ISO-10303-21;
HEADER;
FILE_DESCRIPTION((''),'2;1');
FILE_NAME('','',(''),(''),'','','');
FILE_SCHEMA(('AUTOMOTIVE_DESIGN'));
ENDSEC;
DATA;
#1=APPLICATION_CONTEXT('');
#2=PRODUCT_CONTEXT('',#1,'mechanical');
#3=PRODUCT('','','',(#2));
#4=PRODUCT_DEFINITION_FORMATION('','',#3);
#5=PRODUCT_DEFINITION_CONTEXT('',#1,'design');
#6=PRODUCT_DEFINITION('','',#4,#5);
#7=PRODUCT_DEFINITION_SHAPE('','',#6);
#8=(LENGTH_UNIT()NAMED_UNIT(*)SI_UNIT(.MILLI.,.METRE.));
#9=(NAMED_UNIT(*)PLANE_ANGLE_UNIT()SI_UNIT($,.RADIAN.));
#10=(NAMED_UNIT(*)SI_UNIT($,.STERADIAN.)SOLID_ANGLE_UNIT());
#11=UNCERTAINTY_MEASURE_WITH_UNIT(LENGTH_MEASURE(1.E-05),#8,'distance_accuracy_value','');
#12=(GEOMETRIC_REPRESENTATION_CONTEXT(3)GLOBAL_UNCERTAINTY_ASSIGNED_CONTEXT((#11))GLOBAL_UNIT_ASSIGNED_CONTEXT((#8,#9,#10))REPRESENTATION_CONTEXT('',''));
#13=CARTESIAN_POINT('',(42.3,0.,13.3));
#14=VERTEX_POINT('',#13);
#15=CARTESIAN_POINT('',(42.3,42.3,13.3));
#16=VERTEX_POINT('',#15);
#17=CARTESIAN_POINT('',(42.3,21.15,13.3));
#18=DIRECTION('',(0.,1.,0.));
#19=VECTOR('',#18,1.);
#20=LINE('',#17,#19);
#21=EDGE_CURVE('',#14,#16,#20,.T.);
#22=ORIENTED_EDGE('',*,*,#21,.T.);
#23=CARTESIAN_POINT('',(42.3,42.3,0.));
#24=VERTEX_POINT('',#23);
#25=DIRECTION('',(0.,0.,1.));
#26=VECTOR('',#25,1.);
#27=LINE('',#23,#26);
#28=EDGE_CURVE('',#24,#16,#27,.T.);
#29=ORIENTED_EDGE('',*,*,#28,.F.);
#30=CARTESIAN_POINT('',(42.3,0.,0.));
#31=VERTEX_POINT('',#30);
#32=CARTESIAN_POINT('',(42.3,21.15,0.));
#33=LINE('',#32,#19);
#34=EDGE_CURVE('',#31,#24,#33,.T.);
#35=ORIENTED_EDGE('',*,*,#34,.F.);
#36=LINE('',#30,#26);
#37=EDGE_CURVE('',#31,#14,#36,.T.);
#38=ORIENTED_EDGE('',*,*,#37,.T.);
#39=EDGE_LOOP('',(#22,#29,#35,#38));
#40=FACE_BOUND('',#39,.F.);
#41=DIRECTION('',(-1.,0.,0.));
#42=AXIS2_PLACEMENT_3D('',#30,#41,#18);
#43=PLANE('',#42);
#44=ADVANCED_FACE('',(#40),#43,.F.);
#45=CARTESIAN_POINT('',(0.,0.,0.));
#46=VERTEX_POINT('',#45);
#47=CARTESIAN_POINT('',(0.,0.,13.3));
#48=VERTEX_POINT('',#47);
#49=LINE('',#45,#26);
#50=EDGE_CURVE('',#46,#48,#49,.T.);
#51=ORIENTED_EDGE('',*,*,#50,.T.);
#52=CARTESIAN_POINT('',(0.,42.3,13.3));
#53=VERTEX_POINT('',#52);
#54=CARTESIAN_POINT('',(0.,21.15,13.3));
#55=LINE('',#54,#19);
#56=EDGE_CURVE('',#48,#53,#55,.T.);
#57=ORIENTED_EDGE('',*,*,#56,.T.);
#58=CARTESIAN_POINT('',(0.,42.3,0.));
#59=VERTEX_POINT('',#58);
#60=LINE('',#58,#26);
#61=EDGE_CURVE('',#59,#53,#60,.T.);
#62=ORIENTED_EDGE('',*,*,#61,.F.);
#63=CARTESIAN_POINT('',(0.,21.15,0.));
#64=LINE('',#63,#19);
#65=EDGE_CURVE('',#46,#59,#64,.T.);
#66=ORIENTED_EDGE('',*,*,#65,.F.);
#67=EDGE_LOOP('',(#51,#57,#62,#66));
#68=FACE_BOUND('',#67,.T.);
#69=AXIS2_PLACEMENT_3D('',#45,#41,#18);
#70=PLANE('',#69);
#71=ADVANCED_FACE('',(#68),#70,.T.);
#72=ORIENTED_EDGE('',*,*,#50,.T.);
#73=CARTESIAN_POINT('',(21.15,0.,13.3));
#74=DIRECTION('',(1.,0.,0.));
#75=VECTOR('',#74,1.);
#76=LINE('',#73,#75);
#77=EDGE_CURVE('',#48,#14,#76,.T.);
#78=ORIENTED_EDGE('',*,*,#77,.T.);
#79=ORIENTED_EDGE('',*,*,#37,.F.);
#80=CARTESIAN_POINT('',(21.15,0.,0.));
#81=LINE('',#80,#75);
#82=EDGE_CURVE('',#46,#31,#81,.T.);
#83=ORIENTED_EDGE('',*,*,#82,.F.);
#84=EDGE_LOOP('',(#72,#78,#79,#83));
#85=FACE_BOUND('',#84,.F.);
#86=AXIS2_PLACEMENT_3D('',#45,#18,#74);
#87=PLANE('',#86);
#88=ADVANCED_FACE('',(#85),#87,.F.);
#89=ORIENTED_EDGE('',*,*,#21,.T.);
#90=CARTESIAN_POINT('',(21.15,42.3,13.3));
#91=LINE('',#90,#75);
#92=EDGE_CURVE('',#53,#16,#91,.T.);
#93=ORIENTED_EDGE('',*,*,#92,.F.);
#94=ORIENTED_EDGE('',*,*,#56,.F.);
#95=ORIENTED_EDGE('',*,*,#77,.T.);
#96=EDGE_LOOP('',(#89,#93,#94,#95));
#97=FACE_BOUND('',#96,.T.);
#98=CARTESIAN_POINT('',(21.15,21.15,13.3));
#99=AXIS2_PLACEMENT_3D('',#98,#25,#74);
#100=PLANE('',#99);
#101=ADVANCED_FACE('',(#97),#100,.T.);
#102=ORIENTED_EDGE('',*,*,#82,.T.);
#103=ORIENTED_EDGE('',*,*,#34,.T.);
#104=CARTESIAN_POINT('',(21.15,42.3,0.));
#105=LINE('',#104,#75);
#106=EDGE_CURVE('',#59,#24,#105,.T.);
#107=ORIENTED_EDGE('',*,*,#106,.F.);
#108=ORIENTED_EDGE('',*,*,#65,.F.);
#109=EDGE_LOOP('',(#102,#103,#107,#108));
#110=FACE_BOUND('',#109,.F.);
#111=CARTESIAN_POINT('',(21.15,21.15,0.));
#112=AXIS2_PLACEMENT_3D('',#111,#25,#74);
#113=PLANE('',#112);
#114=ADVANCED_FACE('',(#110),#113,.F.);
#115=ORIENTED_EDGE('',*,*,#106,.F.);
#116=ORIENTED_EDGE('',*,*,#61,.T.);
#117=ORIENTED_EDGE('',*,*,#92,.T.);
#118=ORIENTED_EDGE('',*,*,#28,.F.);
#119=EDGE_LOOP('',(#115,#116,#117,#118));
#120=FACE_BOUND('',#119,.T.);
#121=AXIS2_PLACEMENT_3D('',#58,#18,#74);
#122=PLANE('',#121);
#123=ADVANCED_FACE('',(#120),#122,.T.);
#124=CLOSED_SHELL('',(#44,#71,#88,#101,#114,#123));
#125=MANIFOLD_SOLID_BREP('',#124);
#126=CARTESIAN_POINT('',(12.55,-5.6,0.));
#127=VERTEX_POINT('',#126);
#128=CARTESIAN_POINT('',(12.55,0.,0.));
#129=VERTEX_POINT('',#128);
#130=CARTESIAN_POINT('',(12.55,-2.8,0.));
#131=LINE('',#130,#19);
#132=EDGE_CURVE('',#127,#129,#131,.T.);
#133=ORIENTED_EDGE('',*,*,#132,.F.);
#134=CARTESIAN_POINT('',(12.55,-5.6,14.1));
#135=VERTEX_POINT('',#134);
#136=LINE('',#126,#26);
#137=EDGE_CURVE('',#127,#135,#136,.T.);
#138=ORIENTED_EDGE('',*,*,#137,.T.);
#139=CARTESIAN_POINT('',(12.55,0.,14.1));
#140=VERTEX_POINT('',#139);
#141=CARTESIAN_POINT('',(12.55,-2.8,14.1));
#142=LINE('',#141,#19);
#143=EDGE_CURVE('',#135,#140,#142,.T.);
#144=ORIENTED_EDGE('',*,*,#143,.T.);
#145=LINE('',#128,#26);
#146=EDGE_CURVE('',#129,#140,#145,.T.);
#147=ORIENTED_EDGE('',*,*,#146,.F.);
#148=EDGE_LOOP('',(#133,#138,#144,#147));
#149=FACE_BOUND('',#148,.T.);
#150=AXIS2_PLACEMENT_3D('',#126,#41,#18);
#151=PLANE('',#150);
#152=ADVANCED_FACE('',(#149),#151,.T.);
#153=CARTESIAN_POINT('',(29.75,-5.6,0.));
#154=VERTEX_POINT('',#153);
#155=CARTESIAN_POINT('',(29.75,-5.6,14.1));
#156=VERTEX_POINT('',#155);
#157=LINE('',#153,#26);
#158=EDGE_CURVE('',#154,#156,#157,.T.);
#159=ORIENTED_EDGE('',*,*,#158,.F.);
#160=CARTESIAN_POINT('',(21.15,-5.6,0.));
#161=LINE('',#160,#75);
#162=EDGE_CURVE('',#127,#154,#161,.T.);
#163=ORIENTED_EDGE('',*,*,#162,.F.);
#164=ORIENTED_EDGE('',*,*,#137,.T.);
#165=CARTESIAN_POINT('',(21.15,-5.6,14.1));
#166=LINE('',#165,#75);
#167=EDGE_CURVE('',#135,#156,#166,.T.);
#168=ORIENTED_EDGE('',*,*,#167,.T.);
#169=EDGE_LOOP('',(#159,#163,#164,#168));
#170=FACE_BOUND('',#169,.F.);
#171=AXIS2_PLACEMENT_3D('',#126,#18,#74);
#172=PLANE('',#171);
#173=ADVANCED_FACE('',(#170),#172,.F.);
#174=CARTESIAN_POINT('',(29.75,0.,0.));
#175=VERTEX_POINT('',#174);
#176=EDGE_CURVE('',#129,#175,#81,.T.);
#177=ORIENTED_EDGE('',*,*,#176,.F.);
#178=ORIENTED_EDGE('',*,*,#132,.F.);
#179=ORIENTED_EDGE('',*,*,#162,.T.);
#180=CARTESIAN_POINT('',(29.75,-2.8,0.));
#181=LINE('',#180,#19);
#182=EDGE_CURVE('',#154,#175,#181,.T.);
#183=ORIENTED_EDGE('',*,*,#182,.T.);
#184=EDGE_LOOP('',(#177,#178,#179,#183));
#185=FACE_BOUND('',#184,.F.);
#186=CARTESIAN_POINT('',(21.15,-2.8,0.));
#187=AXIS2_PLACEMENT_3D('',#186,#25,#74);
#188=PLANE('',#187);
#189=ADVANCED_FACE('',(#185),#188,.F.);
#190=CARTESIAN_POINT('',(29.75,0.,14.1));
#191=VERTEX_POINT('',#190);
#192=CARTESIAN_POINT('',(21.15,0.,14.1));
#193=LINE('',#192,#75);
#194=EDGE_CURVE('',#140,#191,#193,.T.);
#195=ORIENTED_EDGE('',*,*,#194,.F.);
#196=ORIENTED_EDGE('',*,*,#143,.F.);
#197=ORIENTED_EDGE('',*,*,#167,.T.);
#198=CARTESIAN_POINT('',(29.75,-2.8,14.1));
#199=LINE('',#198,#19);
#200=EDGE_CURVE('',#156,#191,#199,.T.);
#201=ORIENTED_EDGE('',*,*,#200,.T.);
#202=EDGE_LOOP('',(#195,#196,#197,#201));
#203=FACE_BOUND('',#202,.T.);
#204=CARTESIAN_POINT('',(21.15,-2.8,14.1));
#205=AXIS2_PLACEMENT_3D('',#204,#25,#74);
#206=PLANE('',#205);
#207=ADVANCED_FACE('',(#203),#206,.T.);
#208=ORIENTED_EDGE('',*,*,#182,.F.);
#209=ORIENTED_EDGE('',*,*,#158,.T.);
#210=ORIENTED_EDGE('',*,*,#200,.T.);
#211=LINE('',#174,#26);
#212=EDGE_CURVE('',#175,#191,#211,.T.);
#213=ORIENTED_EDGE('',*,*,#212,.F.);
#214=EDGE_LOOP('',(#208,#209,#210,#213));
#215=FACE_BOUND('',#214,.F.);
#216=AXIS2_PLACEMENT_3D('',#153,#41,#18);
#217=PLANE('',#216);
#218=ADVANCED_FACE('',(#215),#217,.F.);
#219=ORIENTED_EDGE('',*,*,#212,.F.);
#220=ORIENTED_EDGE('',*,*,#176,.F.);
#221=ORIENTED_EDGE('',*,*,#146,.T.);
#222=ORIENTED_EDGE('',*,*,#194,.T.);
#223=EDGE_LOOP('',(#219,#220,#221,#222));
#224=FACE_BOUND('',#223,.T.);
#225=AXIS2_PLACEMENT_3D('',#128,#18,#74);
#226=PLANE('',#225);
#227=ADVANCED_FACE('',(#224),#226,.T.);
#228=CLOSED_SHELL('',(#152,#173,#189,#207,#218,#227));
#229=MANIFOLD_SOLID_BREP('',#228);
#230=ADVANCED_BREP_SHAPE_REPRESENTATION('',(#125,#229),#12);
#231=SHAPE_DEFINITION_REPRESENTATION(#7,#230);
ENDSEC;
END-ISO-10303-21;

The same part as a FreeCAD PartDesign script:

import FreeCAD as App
import Part
import Sketcher
from FreeCAD import Vector

doc = App.newDocument("Part")
body = doc.addObject("PartDesign::Body", "Body")

# Sketch on XY plane
sketch1 = body.newObject("Sketcher::SketchObject", "Sketch")
sketch1.AttachmentSupport = (doc.getObject("XY_Plane"), [""])
sketch1.MapMode = "FlatFace"
sketch1.addGeometry([
    Part.LineSegment(Vector(0, 42, 0), Vector(0, 0, 0)),
    Part.LineSegment(Vector(0, 0, 0), Vector(42, 0, 0)),
    Part.LineSegment(Vector(42, 0, 0), Vector(42, 42, 0)),
    Part.LineSegment(Vector(42, 42, 0), Vector(0, 42, 0)),
], False)
sketch1.addConstraint([
    Sketcher.Constraint("Coincident", 0, 2, 1, 1),
    Sketcher.Constraint("Coincident", 1, 2, 2, 1),
    Sketcher.Constraint("Coincident", 2, 2, 3, 1),
    Sketcher.Constraint("Coincident", 3, 2, 0, 1),
    Sketcher.Constraint("Vertical", 0),
    Sketcher.Constraint("Horizontal", 1),
    Sketcher.Constraint("Vertical", 2),
    Sketcher.Constraint("Horizontal", 3),
    Sketcher.Constraint("Coincident", 0, 2, -1, 1),
    Sketcher.Constraint("Equal", 3, 0),
    Sketcher.Constraint("DistanceX", 1, 1, 1, 2, 42.3),
])
pad1 = body.newObject("PartDesign::Pad", "Pad")
pad1.Profile = sketch1
pad1.Length = 13.3
body2 = doc.addObject("PartDesign::Body", "Body001")

# Sketch on XY plane
sketch2 = body2.newObject("Sketcher::SketchObject", "Sketch001")
sketch2.AttachmentSupport = (doc.getObject("XY_Plane001"), [""])
sketch2.MapMode = "FlatFace"
sketch2.addGeometry([
    Part.LineSegment(Vector(13, 0, 0), Vector(13, -6, 0)),
    Part.LineSegment(Vector(13, -6, 0), Vector(30, -6, 0)),
    Part.LineSegment(Vector(30, -6, 0), Vector(30, 0, 0)),
    Part.LineSegment(Vector(30, 0, 0), Vector(13, 0, 0)),
], False)
sketch2.addConstraint([
    Sketcher.Constraint("Coincident", 0, 2, 1, 1),
    Sketcher.Constraint("Coincident", 1, 2, 2, 1),
    Sketcher.Constraint("Coincident", 2, 2, 3, 1),
    Sketcher.Constraint("Coincident", 3, 2, 0, 1),
    Sketcher.Constraint("Vertical", 0),
    Sketcher.Constraint("Horizontal", 1),
    Sketcher.Constraint("Vertical", 2),
    Sketcher.Constraint("Horizontal", 3),
    Sketcher.Constraint("PointOnObject", 2, 2, -1),
    Sketcher.Constraint("DistanceX", 1, 1, 1, 2, 17.2),
    Sketcher.Constraint("DistanceY", 0, 2, 0, 1, 5.6),
    Sketcher.Constraint("DistanceX", -1, 1, 0, 2, 12.55),
])
pad2 = body2.newObject("PartDesign::Pad", "Pad001")
pad2.Profile = sketch2
pad2.Length = 14.1

doc.recompute()
